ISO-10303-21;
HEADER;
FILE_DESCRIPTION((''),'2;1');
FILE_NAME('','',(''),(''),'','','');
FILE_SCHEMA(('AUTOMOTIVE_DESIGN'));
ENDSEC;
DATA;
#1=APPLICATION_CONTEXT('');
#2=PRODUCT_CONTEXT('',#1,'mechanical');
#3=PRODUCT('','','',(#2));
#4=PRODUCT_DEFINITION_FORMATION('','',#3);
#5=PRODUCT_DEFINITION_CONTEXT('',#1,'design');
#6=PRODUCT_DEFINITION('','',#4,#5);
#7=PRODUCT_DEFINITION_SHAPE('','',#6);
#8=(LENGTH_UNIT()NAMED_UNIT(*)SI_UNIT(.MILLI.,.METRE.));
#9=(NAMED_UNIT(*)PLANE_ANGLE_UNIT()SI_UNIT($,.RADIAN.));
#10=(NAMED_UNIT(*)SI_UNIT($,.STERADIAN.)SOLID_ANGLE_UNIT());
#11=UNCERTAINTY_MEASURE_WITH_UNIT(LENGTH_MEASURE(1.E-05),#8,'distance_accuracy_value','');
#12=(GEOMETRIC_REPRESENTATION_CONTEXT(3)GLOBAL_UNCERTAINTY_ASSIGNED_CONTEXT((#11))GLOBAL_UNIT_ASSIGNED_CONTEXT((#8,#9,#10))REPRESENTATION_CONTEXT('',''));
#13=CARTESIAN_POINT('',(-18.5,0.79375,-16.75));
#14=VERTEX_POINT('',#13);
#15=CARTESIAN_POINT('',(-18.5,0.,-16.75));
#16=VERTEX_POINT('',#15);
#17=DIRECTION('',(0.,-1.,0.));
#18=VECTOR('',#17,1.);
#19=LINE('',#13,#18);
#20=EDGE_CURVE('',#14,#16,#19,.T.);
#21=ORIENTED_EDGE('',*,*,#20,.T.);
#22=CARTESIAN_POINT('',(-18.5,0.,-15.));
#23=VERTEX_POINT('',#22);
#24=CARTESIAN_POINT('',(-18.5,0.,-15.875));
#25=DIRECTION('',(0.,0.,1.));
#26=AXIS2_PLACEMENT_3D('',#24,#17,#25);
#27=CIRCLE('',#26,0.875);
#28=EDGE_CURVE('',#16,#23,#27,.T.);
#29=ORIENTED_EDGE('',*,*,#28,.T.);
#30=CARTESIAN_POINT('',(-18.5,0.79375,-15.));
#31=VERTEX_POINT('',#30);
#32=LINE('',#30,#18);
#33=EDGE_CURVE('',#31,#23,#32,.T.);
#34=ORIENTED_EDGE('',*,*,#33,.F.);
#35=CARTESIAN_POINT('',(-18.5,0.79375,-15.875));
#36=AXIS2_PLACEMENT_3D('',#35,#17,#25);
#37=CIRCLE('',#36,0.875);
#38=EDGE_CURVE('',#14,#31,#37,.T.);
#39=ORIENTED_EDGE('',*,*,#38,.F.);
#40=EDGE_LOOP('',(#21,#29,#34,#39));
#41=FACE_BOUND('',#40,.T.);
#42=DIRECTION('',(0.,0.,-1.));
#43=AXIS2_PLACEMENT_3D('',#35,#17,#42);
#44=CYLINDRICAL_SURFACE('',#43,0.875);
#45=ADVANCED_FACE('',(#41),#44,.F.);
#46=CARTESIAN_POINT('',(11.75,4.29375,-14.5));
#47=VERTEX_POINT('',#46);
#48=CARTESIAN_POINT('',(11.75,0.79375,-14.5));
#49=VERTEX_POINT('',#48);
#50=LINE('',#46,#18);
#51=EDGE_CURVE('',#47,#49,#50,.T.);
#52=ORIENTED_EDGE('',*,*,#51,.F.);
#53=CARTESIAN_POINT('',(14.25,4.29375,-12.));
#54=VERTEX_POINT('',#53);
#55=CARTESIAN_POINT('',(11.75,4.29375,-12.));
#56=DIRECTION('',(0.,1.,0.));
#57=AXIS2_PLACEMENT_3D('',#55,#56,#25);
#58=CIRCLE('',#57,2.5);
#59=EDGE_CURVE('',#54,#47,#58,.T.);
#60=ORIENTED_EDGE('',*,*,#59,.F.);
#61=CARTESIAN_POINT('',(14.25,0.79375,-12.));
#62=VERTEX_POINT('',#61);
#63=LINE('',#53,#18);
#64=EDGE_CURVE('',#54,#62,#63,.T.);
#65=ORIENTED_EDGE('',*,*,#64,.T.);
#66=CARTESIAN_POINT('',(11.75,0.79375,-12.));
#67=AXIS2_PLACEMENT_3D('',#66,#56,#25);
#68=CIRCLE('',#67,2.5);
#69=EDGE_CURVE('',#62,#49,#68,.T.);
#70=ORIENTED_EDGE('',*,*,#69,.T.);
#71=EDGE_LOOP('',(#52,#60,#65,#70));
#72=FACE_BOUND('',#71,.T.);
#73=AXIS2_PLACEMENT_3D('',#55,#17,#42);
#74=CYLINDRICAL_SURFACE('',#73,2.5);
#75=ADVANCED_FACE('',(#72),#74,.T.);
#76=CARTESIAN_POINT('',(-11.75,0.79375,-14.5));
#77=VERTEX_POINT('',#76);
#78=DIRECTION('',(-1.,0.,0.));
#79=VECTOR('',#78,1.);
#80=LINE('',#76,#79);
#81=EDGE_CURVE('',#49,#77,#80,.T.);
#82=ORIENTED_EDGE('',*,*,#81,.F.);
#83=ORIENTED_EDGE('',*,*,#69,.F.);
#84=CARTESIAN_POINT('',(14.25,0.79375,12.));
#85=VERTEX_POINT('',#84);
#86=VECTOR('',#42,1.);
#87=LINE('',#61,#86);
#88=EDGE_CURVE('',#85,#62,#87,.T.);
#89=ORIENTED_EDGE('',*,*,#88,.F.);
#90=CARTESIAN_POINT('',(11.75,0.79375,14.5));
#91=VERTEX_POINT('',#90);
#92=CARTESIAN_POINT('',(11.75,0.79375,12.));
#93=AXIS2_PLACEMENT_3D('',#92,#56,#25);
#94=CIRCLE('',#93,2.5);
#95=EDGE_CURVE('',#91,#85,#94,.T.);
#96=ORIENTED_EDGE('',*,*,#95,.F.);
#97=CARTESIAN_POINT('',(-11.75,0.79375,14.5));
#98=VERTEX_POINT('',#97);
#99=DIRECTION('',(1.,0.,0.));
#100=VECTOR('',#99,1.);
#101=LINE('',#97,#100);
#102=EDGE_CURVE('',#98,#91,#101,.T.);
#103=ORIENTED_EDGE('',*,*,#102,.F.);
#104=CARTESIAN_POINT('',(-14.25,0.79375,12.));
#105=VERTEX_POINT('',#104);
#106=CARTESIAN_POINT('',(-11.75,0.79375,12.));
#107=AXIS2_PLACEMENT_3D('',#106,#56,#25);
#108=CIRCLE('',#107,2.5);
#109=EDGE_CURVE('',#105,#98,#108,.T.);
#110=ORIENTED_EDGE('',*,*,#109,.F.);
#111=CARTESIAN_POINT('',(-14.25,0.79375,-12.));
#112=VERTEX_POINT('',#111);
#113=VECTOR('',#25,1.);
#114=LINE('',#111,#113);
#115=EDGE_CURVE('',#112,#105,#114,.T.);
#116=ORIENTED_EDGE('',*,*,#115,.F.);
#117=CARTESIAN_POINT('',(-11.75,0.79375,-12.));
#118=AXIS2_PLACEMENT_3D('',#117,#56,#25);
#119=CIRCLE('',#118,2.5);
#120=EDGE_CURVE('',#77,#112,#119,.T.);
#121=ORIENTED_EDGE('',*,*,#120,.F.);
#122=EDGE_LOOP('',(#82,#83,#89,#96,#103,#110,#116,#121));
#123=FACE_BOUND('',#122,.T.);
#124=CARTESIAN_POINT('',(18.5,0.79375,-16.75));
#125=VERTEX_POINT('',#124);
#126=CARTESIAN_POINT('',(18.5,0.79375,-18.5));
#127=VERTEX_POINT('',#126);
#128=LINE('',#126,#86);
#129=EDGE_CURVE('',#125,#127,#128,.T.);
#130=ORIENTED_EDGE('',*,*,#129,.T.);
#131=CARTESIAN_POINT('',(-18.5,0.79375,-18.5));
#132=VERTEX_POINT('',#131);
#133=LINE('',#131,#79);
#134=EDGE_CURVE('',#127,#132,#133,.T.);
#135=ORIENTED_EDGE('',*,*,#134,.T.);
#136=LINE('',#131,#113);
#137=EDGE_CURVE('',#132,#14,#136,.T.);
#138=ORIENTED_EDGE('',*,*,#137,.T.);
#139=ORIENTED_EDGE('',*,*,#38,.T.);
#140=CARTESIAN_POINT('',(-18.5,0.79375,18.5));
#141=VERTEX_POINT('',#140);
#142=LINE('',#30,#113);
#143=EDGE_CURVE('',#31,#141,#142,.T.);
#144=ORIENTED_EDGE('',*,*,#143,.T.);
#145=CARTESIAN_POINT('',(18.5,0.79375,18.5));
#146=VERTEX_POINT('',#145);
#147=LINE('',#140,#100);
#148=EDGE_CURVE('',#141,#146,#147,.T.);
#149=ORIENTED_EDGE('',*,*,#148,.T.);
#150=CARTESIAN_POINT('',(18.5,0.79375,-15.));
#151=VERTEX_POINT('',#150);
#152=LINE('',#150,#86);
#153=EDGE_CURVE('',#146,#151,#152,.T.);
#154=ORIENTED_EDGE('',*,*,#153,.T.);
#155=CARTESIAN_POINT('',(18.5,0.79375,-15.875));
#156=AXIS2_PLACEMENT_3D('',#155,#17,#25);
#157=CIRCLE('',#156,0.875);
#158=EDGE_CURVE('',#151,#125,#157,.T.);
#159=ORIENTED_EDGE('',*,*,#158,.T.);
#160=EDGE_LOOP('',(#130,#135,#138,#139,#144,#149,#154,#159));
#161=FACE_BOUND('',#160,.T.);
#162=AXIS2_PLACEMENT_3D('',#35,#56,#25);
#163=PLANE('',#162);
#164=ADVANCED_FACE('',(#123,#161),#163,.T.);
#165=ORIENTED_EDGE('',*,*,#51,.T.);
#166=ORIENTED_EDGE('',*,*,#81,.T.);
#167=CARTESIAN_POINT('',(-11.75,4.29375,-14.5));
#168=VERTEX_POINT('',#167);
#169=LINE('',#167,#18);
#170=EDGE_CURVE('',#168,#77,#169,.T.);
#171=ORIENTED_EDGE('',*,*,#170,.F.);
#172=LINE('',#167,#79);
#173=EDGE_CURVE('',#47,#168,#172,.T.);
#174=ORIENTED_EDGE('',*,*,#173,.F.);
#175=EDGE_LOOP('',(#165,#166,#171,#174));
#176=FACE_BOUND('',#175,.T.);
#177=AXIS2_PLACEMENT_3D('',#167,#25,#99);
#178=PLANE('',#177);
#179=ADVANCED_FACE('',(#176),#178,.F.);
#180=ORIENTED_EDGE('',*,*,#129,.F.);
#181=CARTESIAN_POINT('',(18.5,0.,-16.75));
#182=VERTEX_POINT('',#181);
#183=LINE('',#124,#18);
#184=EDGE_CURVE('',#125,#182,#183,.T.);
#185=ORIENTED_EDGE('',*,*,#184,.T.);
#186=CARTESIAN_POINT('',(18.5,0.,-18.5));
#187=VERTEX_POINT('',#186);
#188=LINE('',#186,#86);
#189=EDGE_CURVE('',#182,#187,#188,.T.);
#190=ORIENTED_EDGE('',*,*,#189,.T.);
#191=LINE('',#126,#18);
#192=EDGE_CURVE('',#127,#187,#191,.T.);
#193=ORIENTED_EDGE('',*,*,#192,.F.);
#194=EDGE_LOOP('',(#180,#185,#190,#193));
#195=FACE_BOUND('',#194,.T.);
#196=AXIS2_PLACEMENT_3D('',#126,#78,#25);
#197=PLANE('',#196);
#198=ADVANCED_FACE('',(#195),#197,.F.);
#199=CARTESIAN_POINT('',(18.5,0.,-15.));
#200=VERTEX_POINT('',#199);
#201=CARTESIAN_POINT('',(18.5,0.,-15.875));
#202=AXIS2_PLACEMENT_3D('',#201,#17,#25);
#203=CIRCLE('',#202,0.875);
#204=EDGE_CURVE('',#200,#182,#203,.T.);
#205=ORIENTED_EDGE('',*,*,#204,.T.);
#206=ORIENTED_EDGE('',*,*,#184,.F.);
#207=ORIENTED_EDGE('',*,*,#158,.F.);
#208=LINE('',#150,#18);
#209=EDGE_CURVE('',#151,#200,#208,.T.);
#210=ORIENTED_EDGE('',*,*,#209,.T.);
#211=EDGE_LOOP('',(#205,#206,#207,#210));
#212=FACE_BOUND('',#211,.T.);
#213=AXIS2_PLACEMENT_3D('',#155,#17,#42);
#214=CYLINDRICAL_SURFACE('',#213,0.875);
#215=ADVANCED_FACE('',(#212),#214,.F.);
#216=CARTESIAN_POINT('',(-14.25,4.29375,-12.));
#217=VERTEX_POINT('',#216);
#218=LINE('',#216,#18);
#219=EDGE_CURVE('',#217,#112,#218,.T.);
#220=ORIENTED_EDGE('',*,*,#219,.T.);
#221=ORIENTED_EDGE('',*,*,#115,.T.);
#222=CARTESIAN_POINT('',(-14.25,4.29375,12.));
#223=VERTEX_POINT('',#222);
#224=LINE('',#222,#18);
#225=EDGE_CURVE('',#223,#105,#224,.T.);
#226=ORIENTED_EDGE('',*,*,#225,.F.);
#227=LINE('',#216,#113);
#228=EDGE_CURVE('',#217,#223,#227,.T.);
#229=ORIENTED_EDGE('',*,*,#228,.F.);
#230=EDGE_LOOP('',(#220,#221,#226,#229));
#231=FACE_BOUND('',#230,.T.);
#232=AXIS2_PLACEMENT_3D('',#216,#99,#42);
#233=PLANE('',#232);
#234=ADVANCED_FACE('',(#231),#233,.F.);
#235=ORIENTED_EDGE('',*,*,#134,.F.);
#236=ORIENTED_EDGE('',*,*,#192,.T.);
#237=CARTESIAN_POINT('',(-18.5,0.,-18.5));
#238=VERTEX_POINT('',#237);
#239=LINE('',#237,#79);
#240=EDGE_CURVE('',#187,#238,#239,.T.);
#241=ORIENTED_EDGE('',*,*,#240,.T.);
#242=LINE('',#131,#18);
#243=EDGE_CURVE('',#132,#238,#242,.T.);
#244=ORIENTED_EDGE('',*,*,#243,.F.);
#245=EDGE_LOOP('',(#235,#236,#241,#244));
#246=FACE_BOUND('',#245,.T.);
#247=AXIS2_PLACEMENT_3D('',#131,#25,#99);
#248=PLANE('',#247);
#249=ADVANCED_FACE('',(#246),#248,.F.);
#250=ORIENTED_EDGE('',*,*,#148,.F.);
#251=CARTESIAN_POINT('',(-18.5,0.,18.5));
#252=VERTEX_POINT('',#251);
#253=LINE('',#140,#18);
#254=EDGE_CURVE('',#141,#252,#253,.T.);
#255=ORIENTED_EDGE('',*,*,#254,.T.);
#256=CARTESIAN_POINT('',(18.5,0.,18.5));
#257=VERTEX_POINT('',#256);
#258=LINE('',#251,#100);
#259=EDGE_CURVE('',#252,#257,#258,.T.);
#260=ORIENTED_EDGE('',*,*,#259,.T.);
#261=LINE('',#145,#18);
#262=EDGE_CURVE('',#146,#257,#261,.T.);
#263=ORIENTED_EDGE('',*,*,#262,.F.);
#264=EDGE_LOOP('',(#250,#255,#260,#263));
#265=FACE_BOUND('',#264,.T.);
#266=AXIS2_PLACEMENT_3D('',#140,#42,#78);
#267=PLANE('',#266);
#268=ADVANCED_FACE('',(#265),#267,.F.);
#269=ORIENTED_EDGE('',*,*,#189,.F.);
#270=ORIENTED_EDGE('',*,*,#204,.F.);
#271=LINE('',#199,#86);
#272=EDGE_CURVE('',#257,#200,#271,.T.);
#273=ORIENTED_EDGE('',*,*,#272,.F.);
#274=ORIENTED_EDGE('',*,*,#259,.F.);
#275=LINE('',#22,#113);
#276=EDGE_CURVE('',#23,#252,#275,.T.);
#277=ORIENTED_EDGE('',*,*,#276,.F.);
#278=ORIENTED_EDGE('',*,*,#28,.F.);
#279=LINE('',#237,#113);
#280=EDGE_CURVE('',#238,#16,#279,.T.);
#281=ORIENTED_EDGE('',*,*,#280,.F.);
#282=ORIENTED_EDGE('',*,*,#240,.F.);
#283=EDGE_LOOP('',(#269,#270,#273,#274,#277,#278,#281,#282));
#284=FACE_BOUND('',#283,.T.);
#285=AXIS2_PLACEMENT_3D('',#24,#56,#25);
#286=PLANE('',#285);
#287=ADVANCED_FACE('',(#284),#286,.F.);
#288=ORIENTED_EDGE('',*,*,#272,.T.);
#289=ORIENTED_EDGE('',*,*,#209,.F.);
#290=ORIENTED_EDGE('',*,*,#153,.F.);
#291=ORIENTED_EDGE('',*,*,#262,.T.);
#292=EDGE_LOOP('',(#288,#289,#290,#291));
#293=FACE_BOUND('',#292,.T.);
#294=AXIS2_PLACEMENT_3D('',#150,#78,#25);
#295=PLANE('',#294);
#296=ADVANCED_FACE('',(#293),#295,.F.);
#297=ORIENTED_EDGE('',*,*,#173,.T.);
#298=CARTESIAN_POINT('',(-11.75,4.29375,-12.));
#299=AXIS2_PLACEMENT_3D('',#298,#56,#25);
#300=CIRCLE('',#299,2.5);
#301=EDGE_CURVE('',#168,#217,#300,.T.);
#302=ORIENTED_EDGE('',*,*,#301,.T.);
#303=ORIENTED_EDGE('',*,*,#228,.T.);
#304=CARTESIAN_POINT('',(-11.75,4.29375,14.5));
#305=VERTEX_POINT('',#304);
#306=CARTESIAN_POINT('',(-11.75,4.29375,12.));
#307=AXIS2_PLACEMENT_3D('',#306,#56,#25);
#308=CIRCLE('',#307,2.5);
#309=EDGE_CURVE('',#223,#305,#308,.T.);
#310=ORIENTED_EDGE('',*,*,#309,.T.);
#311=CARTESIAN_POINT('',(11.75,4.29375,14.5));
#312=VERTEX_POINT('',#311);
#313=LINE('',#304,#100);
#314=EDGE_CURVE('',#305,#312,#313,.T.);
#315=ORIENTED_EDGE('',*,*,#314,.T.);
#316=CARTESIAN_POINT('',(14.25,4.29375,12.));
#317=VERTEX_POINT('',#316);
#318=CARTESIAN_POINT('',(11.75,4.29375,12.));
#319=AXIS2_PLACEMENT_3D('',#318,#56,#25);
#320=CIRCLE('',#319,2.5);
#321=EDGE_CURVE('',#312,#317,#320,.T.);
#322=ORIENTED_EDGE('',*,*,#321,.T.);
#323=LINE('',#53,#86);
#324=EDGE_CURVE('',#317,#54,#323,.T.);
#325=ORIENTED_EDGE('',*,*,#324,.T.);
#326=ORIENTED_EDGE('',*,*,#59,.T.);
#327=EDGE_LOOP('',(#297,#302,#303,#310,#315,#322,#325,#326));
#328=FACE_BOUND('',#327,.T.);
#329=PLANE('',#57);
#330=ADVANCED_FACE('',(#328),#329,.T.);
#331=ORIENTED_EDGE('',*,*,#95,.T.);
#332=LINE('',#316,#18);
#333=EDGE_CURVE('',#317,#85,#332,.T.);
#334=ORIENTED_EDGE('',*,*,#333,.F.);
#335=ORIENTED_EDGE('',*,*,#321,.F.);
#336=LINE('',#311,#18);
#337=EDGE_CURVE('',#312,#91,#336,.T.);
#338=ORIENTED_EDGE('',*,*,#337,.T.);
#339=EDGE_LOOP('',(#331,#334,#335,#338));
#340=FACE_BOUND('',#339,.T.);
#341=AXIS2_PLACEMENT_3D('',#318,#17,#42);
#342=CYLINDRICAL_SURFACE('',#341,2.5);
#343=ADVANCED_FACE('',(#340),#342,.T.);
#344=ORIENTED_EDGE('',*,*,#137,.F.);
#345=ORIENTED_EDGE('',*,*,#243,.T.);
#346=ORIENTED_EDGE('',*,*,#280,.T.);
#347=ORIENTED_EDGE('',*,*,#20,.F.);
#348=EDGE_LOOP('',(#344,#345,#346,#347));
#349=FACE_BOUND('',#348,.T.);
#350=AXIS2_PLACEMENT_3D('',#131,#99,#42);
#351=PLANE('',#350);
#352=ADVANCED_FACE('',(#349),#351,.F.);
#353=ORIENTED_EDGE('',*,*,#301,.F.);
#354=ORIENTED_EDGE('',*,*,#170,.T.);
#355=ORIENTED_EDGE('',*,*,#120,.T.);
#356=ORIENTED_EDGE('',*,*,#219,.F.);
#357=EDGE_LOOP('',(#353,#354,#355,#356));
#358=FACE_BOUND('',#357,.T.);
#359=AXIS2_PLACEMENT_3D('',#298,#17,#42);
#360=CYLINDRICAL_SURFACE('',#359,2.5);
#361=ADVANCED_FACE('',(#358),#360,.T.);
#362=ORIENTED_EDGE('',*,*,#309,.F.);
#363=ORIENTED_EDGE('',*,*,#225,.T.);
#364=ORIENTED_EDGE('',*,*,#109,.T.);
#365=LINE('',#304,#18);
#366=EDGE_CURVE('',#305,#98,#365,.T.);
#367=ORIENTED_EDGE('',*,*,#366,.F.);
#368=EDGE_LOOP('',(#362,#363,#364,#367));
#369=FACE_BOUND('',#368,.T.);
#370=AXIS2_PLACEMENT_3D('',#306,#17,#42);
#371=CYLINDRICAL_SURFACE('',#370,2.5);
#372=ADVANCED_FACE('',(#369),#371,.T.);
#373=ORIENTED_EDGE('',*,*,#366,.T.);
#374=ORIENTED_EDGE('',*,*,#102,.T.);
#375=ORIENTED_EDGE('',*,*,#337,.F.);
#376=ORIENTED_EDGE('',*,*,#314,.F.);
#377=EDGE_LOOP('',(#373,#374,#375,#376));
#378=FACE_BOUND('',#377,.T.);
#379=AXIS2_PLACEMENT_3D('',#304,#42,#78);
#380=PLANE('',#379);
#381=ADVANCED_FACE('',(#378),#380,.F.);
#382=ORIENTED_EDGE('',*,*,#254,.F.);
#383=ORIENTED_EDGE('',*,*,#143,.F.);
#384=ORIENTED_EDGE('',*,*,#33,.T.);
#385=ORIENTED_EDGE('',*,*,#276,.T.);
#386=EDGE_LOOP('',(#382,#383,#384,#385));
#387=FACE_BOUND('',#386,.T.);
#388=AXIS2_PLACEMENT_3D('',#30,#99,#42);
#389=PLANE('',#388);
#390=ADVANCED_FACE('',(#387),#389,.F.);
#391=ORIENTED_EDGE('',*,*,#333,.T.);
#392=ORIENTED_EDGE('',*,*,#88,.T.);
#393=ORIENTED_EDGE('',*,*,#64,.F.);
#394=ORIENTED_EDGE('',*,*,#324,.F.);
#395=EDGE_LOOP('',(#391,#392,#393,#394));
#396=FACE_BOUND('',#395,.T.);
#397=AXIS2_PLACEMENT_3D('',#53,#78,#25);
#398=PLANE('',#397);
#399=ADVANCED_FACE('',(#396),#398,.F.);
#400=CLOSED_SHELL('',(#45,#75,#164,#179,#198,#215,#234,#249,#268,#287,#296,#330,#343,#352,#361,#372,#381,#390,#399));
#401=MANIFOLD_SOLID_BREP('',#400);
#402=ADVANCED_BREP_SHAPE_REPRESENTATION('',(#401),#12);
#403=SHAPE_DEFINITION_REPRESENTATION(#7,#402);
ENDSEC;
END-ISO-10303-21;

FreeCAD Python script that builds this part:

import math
import FreeCAD as App
import Part
import Sketcher
Q = App.Units.Quantity

doc = App.newDocument("Part")
params = doc.addObject("Spreadsheet::Sheet", "Params")
for row, (alias, value) in enumerate([
    ("sketch1_width", "37 mm"),
    ("sketch1_height", "33.5 mm"),
    ("pad1_length", "0.79375 mm"),
    ("sketch2_radius", "2.5 mm"),
    ("sketch2_height", "24 mm"),
    ("sketch2_width", "23.5 mm"),
    ("pad2_length", "3.5 mm"),
], start=1):
    params.set(f"A{row}", alias)
    params.set(f"B{row}", "=" + value)
    params.setAlias(f"B{row}", alias)

body = doc.addObject("PartDesign::Body", "Body")

sketch1 = body.newObject("Sketcher::SketchObject", "Sketch")
sketch1.AttachmentSupport = (doc.getObject("XZ_Plane"), [""])
sketch1.MapMode = "FlatFace"
sketch1.addGeometry([
    Part.LineSegment(App.Vector(18.5, -18.5, 0), App.Vector(-18.5, -18.5, 0)),
    Part.LineSegment(App.Vector(-18.5, -18.5, 0), App.Vector(-18.5, -16.8, 0)),
    Part.ArcOfCircle(Part.Circle(App.Vector(-18.5, -15.9, 0), App.Vector(0, 0, 1), 0.9), math.radians(-90), math.radians(90)),
    Part.LineSegment(App.Vector(-18.5, -15, 0), App.Vector(-18.5, 18.5, 0)),
    Part.LineSegment(App.Vector(-18.5, 18.5, 0), App.Vector(18.5, 18.5, 0)),
    Part.LineSegment(App.Vector(18.5, 18.5, 0), App.Vector(18.5, -15, 0)),
    Part.ArcOfCircle(Part.Circle(App.Vector(18.5, -15.9, 0), App.Vector(0, 0, 1), 0.9), math.radians(90), math.radians(270)),
    Part.LineSegment(App.Vector(18.5, -16.8, 0), App.Vector(18.5, -18.5, 0)),
], False)
sketch1.addConstraint([
    Sketcher.Constraint("Coincident", 0, 2, 1, 1),
    Sketcher.Constraint("Coincident", 1, 2, 2, 1),
    Sketcher.Constraint("Coincident", 2, 2, 3, 1),
    Sketcher.Constraint("Coincident", 3, 2, 4, 1),
    Sketcher.Constraint("Coincident", 4, 2, 5, 1),
    Sketcher.Constraint("Coincident", 5, 2, 6, 1),
    Sketcher.Constraint("Coincident", 6, 2, 7, 1),
    Sketcher.Constraint("Coincident", 7, 2, 0, 1),
    Sketcher.Constraint("Horizontal", 0),
    Sketcher.Constraint("Vertical", 1),
    Sketcher.Constraint("Vertical", 3),
    Sketcher.Constraint("Horizontal", 4),
    Sketcher.Constraint("Vertical", 5),
    Sketcher.Constraint("Vertical", 7),
    Sketcher.Constraint("Equal", 2, 6),
    Sketcher.Constraint("Symmetric", 0, 2, 4, 2, -1, 1),
    Sketcher.Constraint("Symmetric", 2, 3, 6, 3, -2),
    Sketcher.Constraint("Vertical", 2, 3, 0, 2),
    Sketcher.Constraint("Vertical", 1, 2, 2, 2),
    Sketcher.Constraint("Vertical", 5, 2, 6, 2),
    Sketcher.Constraint("DistanceX", 0, 2, 0, 1, Q("37 mm")),
    Sketcher.Constraint("DistanceY", 3, 1, 3, 2, Q("33.5 mm")),
    Sketcher.Constraint("DistanceY", 2, 2, -1, 1, Q("15 mm")),
    Sketcher.Constraint("Radius", 2, Q("0.875 mm")),
])
sketch1.setExpression("Constraints[20]", "Params.sketch1_width")
sketch1.setExpression("Constraints[21]", "Params.sketch1_height")
pad1 = body.newObject("PartDesign::Pad", "Pad")
pad1.Profile = sketch1
pad1.setExpression("Length", "Params.pad1_length")
pad1.Reversed = True

sketch2 = body.newObject("Sketcher::SketchObject", "Sketch001")
sketch2.AttachmentSupport = (doc.getObject("XZ_Plane"), [""])
sketch2.MapMode = "FlatFace"
sketch2.AttachmentOffset = App.Placement(App.Vector(0, 0, -0.79375), App.Rotation())
sketch2.addGeometry([
    Part.LineSegment(App.Vector(11.8, -14.5, 0), App.Vector(-11.8, -14.5, 0)),
    Part.ArcOfCircle(Part.Circle(App.Vector(-11.8, -12, 0), App.Vector(0, 0, 1), 2.5), math.radians(180), math.radians(270)),
    Part.LineSegment(App.Vector(-14.2, -12, 0), App.Vector(-14.2, 12, 0)),
    Part.ArcOfCircle(Part.Circle(App.Vector(-11.8, 12, 0), App.Vector(0, 0, 1), 2.5), math.radians(90), math.radians(180)),
    Part.LineSegment(App.Vector(-11.8, 14.5, 0), App.Vector(11.8, 14.5, 0)),
    Part.ArcOfCircle(Part.Circle(App.Vector(11.8, 12, 0), App.Vector(0, 0, 1), 2.5), math.radians(0), math.radians(90)),
    Part.LineSegment(App.Vector(14.2, 12, 0), App.Vector(14.2, -12, 0)),
    Part.ArcOfCircle(Part.Circle(App.Vector(11.8, -12, 0), App.Vector(0, 0, 1), 2.5), math.radians(-90), math.radians(0)),
], False)
sketch2.addConstraint([
    Sketcher.Constraint("Tangent", 0, 2, 1, 2),
    Sketcher.Constraint("Tangent", 1, 1, 2, 1),
    Sketcher.Constraint("Tangent", 2, 2, 3, 2),
    Sketcher.Constraint("Tangent", 3, 1, 4, 1),
    Sketcher.Constraint("Tangent", 4, 2, 5, 2),
    Sketcher.Constraint("Tangent", 5, 1, 6, 1),
    Sketcher.Constraint("Tangent", 6, 2, 7, 2),
    Sketcher.Constraint("Tangent", 7, 1, 0, 1),
    Sketcher.Constraint("Horizontal", 0),
    Sketcher.Constraint("Vertical", 2),
    Sketcher.Constraint("Horizontal", 4),
    Sketcher.Constraint("Vertical", 6),
    Sketcher.Constraint("Equal", 1, 3),
    Sketcher.Constraint("Equal", 3, 5),
    Sketcher.Constraint("Equal", 5, 7),
    Sketcher.Constraint("Symmetric", 1, 3, 5, 3, -1, 1),
    Sketcher.Constraint("Radius", 1, Q("2.5 mm")),
    Sketcher.Constraint("DistanceY", 2, 1, 2, 2, Q("24 mm")),
    Sketcher.Constraint("DistanceX", 0, 2, 0, 1, Q("23.5 mm")),
])
sketch2.setExpression("Constraints[16]", "Params.sketch2_radius")
sketch2.setExpression("Constraints[17]", "Params.sketch2_height")
sketch2.setExpression("Constraints[18]", "Params.sketch2_width")
pad2 = body.newObject("PartDesign::Pad", "Pad001")
pad2.Profile = sketch2
pad2.setExpression("Length", "Params.pad2_length")
pad2.Reversed = True

doc.recompute()
